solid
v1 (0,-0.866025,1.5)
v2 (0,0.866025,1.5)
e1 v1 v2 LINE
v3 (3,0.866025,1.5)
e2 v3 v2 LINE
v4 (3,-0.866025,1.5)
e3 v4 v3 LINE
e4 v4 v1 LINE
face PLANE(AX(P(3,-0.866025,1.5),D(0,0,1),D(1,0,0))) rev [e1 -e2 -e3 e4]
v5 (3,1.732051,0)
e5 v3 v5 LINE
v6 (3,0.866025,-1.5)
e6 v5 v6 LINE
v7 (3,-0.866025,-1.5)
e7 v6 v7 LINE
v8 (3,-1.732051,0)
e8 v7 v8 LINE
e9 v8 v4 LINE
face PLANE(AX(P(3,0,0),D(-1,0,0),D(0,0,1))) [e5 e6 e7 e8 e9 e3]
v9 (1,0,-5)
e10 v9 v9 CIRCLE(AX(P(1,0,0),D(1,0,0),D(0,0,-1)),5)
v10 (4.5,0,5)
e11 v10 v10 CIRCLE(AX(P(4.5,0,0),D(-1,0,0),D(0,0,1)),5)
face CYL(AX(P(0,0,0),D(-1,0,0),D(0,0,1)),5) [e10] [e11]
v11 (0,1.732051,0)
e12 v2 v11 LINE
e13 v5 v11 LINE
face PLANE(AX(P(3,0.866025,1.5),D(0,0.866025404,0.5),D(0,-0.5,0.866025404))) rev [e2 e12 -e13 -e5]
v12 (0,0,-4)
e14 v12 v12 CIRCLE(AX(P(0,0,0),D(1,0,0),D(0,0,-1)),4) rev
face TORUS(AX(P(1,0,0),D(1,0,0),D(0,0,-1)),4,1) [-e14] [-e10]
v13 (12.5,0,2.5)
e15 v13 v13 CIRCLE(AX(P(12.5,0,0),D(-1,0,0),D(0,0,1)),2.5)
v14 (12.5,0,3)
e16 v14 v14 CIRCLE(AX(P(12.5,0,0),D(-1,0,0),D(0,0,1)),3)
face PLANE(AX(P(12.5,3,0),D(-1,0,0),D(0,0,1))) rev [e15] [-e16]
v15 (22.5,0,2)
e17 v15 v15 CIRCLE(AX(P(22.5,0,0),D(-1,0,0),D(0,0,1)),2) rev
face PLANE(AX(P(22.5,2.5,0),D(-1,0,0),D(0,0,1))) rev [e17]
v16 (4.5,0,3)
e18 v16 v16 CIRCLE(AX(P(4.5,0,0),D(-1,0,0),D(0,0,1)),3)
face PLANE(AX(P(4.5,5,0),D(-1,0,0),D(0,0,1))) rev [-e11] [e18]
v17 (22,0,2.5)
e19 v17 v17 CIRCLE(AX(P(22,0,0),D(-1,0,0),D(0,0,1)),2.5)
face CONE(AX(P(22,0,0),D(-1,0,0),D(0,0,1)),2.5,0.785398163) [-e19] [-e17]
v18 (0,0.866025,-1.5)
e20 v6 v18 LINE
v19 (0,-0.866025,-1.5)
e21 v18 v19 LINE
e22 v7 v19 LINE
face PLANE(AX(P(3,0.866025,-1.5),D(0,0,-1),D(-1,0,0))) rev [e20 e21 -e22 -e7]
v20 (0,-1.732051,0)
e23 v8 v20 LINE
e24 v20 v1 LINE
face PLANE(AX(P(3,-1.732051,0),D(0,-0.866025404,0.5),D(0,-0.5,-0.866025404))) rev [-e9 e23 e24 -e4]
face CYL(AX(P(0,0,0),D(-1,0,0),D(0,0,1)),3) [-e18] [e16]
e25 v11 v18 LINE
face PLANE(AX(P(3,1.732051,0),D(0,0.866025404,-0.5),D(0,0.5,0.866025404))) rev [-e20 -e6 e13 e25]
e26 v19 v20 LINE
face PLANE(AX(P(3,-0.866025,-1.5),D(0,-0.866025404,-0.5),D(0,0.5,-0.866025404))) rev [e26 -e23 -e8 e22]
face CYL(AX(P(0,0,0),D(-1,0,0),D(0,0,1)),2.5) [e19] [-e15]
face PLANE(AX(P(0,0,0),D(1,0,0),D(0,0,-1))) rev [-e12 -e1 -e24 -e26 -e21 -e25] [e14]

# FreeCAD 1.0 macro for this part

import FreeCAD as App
import Part
import Sketcher

V = App.Vector
Q = App.Units.Quantity


def edges_at(feature, points):
    """Names of the edges that pass closest to the given points."""
    edges = feature.Shape.Edges
    near = lambda p: min(range(len(edges)), key=lambda i: edges[i].distToShape(Part.Vertex(*p))[0])
    return sorted({f"Edge{near(p) + 1}" for p in points})


def add_polygon(sketch, points):
    """Adds a closed chain of lines whose ends are joined by coincident constraints."""
    first, n = sketch.GeometryCount, len(points)
    for a, b in zip(points, points[1:] + points[:1]):
        sketch.addGeometry(Part.LineSegment(App.Vector(*a, 0), App.Vector(*b, 0)), False)
    for i in range(n):
        sketch.addConstraint(Sketcher.Constraint("Coincident", first + i, 2, first + (i + 1) % n, 1))

doc = App.newDocument("Part")
body = doc.addObject("PartDesign::Body", "Body")

# Sketch on XY plane
sketch1 = body.newObject("Sketcher::SketchObject", "Sketch")
sketch1.AttachmentSupport = (doc.getObject("XY_Plane"), [""])
sketch1.MapMode = "FlatFace"
add_polygon(sketch1, [(0, 5), (0, 0), (22.5, 0), (22.5, 2.5), (12.5, 2.5), (12.5, 3), (4.5, 3), (4.5, 5)])  # lines 0-7
sketch1.addConstraint(Sketcher.Constraint("Vertical", 0))
sketch1.addConstraint(Sketcher.Constraint("Horizontal", 1))
sketch1.addConstraint(Sketcher.Constraint("Vertical", 2))
sketch1.addConstraint(Sketcher.Constraint("Horizontal", 3))
sketch1.addConstraint(Sketcher.Constraint("Vertical", 4))
sketch1.addConstraint(Sketcher.Constraint("Horizontal", 5))
sketch1.addConstraint(Sketcher.Constraint("Vertical", 6))
sketch1.addConstraint(Sketcher.Constraint("Horizontal", 7))
sketch1.addConstraint(Sketcher.Constraint("Coincident", 0, 2, -1, 1))
sketch1.addConstraint(Sketcher.Constraint("DistanceX", 3, 2, 3, 1, 10.0))
sketch1.addConstraint(Sketcher.Constraint("DistanceX", 5, 2, 5, 1, 8.0))
sketch1.addConstraint(Sketcher.Constraint("DistanceY", 0, 2, 0, 1, 5.0))
sketch1.addConstraint(Sketcher.Constraint("DistanceY", 6, 1, 6, 2, 2.0))
sketch1.addConstraint(Sketcher.Constraint("DistanceX", 1, 1, 1, 2, 22.5))
sketch1.addConstraint(Sketcher.Constraint("DistanceY", 2, 1, 2, 2, 2.5))
revolution = body.newObject("PartDesign::Revolution", "Revolution")
revolution.Profile = sketch1
revolution.ReferenceAxis = (sketch1, ["H_Axis"])
revolution.Angle = 360

# Sketch on YZ plane
sketch2 = body.newObject("Sketcher::SketchObject", "Sketch001")
sketch2.AttachmentSupport = (doc.getObject("YZ_Plane"), [""])
sketch2.MapMode = "FlatFace"
add_polygon(sketch2, [(1.732051, 0), (0.866025, -1.5), (-0.866025, -1.5), (-1.732051, 0), (-0.866025, 1.5), (0.866025, 1.5)])  # lines 0-5
sketch2.addConstraint(Sketcher.Constraint("Horizontal", 1))
sketch2.addConstraint(Sketcher.Constraint("Horizontal", 4))
sketch2.addConstraint(Sketcher.Constraint("Symmetric", 0, 2, 3, 2, -1, 1))
sketch2.addConstraint(Sketcher.Constraint("Symmetric", 2, 2, 5, 2, -1, 1))
sketch2.addConstraint(Sketcher.Constraint("PointOnObject", 2, 2, -1))
sketch2.addConstraint(Sketcher.Constraint("Parallel", 2, 5))
sketch2.addConstraint(Sketcher.Constraint("Vertical", 1, 2, 3, 2))
sketch2.addConstraint(Sketcher.Constraint("Angle", 0, Q("-120 deg")))
sketch2.addConstraint(Sketcher.Constraint("DistanceY", 1, 2, 3, 2, 3.0))
sketch2.addConstraint(Sketcher.Constraint("DistanceX", 1, 2, 1, 1, 1.732051))
pocket1 = body.newObject("PartDesign::Pocket", "Pocket")
pocket1.Profile = sketch2
pocket1.Length = 3
pocket1.Reversed = True
doc.recompute()

fillet = body.newObject("PartDesign::Fillet", "Fillet")
fillet.Base = (pocket1, edges_at(pocket1, [(0, -5, 0)]))
fillet.Radius = 1
doc.recompute()

chamfer = body.newObject("PartDesign::Chamfer", "Chamfer")
chamfer.Base = (fillet, edges_at(fillet, [(22.5, -2.5, 0)]))
chamfer.Size = 0.5

doc.recompute()
